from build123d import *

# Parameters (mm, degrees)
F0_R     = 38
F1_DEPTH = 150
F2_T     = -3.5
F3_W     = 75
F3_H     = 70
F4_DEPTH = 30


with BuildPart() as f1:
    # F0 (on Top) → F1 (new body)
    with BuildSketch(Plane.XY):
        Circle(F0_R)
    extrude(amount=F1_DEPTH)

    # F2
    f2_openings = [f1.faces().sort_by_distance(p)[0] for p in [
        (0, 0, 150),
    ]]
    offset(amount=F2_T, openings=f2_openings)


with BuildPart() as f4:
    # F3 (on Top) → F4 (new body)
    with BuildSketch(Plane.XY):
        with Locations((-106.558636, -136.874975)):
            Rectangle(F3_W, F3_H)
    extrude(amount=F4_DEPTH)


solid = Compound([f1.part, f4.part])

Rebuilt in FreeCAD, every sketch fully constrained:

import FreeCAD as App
import Part
import Sketcher
from FreeCAD import Vector


def faces_at(feature, points):
    """Names of the faces that lie closest to the given points."""
    faces = feature.Shape.Faces
    near = lambda p: min(range(len(faces)), key=lambda i: faces[i].distToShape(Part.Vertex(*p))[0])
    return sorted({f"Face{near(p) + 1}" for p in points})

doc = App.newDocument("Part")
params = doc.addObject("Spreadsheet::Sheet", "Params")
for row, (alias, value) in enumerate([
    ("sketch1_diameter", "76 mm"),
    ("pad1_length", "150 mm"),
    ("thickness_wall", "3.5 mm"),
    ("sketch2_width", "75 mm"),
    ("sketch2_height", "70 mm"),
    ("pad2_length", "30 mm"),
], start=1):
    params.set(f"A{row}", alias)
    params.set(f"B{row}", "=" + value)
    params.setAlias(f"B{row}", alias)

body = doc.addObject("PartDesign::Body", "Body")

# Sketch on XY plane
sketch1 = body.newObject("Sketcher::SketchObject", "Sketch")
sketch1.AttachmentSupport = (doc.getObject("XY_Plane"), [""])
sketch1.MapMode = "FlatFace"
sketch1.addGeometry(Part.Circle(Vector(0, 0, 0), Vector(0, 0, 1), 38), False)
sketch1.addConstraint([
    Sketcher.Constraint("Coincident", 0, 3, -1, 1),
    Sketcher.Constraint("Diameter", 0, 76.0),
])
sketch1.setExpression("Constraints[1]", "Params.sketch1_diameter")
pad1 = body.newObject("PartDesign::Pad", "Pad")
pad1.Profile = sketch1
pad1.setExpression("Length", "Params.pad1_length")
doc.recompute()

thickness = body.newObject("PartDesign::Thickness", "Thickness")
thickness.Base = (pad1, faces_at(pad1, [(0, 0, 150)]))
thickness.setExpression("Value", "Params.thickness_wall")
thickness.Reversed = True
thickness.Join = "Arc"
body2 = doc.addObject("PartDesign::Body", "Body001")

# Sketch on XY plane
sketch2 = body2.newObject("Sketcher::SketchObject", "Sketch001")
sketch2.AttachmentSupport = (doc.getObject("XY_Plane001"), [""])
sketch2.MapMode = "FlatFace"
sketch2.addGeometry([
    Part.LineSegment(Vector(-144, -102, 0), Vector(-144, -172, 0)),
    Part.LineSegment(Vector(-144, -172, 0), Vector(-69, -172, 0)),
    Part.LineSegment(Vector(-69, -172, 0), Vector(-69, -102, 0)),
    Part.LineSegment(Vector(-69, -102, 0), Vector(-144, -102, 0)),
], False)
sketch2.addConstraint([
    Sketcher.Constraint("Coincident", 0, 2, 1, 1),
    Sketcher.Constraint("Coincident", 1, 2, 2, 1),
    Sketcher.Constraint("Coincident", 2, 2, 3, 1),
    Sketcher.Constraint("Coincident", 3, 2, 0, 1),
    Sketcher.Constraint("Vertical", 0),
    Sketcher.Constraint("Horizontal", 1),
    Sketcher.Constraint("Vertical", 2),
    Sketcher.Constraint("Horizontal", 3),
    Sketcher.Constraint("DistanceX", 1, 1, 1, 2, 75.0),
    Sketcher.Constraint("DistanceY", 0, 2, 0, 1, 70.0),
    Sketcher.Constraint("DistanceX", 0, 2, -1, 1, 144.058636),
    Sketcher.Constraint("DistanceY", 0, 2, -1, 1, 171.874975),
])
sketch2.setExpression("Constraints[8]", "Params.sketch2_width")
sketch2.setExpression("Constraints[9]", "Params.sketch2_height")
pad2 = body2.newObject("PartDesign::Pad", "Pad001")
pad2.Profile = sketch2
pad2.setExpression("Length", "Params.pad2_length")

doc.recompute()
